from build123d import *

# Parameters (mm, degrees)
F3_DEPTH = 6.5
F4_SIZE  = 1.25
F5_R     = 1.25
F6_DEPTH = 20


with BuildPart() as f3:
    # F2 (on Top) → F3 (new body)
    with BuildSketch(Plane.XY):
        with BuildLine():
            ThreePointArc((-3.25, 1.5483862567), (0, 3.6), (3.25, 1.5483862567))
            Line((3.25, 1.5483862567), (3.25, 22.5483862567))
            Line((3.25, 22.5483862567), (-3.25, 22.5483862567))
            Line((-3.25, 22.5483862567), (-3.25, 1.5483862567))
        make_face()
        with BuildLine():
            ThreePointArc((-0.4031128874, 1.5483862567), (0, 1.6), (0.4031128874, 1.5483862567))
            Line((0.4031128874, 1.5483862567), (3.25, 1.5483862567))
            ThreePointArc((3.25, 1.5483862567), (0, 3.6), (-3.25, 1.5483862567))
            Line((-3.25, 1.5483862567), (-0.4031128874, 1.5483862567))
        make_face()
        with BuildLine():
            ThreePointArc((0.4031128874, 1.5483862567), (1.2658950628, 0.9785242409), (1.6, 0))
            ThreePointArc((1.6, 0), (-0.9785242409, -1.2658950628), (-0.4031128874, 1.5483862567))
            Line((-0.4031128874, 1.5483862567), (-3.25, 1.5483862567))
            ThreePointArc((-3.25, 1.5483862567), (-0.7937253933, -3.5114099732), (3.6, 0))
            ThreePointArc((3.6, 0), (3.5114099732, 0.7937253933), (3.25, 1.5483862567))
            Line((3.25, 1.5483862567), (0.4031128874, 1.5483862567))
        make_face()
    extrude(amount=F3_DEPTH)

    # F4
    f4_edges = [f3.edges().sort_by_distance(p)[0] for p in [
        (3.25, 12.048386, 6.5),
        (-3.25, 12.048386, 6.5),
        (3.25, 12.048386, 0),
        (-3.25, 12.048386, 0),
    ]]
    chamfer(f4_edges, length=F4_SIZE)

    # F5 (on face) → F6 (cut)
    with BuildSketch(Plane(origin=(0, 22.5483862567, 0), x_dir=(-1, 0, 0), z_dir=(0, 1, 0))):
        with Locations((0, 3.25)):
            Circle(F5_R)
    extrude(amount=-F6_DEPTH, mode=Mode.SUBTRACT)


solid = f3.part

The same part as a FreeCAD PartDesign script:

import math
import FreeCAD as App
import Part
import Sketcher
Q = App.Units.Quantity


def edges_at(feature, points):
    """Names of the edges that pass closest to the given points."""
    edges = feature.Shape.Edges
    near = lambda p: min(range(len(edges)), key=lambda i: edges[i].distToShape(Part.Vertex(*p))[0])
    return sorted({f"Edge{near(p) + 1}" for p in points})

doc = App.newDocument("Part")
body = doc.addObject("PartDesign::Body", "Body")

# Sketch on XY plane
sketch1 = body.newObject("Sketcher::SketchObject", "Sketch")
sketch1.AttachmentSupport = (doc.getObject("XY_Plane"), [""])
sketch1.MapMode = "FlatFace"
sketch1.addGeometry(Part.LineSegment(App.Vector(3.25, 1.548386, 0), App.Vector(3.25, 22.548386, 0)), False)
sketch1.addGeometry(Part.LineSegment(App.Vector(3.25, 22.548386, 0), App.Vector(-3.25, 22.548386, 0)), False)
sketch1.addGeometry(Part.LineSegment(App.Vector(-3.25, 22.548386, 0), App.Vector(-3.25, 1.548386, 0)), False)
sketch1.addGeometry(Part.ArcOfCircle(Part.Circle(App.Vector(0, 0, 0), App.Vector(0, 0, 1), 3.6), math.radians(154.525631), math.radians(360)), False)
sketch1.addGeometry(Part.ArcOfCircle(Part.Circle(App.Vector(0, 0, 0), App.Vector(0, 0, 1), 3.6), math.radians(0), math.radians(25.474369)), False)
sketch1.addGeometry(Part.ArcOfCircle(Part.Circle(App.Vector(0, 0, 0), App.Vector(0, 0, 1), 1.6), math.radians(75.40733), math.radians(104.59267)), False)
sketch1.addGeometry(Part.ArcOfCircle(Part.Circle(App.Vector(0, 0, 0), App.Vector(0, 0, 1), 1.6), math.radians(0), math.radians(75.40733)), False)
sketch1.addGeometry(Part.ArcOfCircle(Part.Circle(App.Vector(0, 0, 0), App.Vector(0, 0, 1), 1.6), math.radians(104.59267), math.radians(360)), False)
sketch1.addConstraint(Sketcher.Constraint("Coincident", 0, 2, 1, 1))
sketch1.addConstraint(Sketcher.Constraint("Coincident", 1, 2, 2, 1))
sketch1.addConstraint(Sketcher.Constraint("Coincident", 2, 2, 3, 1))
sketch1.addConstraint(Sketcher.Constraint("Tangent", 3, 2, 4, 1))
sketch1.addConstraint(Sketcher.Constraint("Coincident", 4, 2, 0, 1))
sketch1.addConstraint(Sketcher.Constraint("Tangent", 5, 1, 6, 2))
sketch1.addConstraint(Sketcher.Constraint("Tangent", 6, 1, 7, 2))
sketch1.addConstraint(Sketcher.Constraint("Tangent", 7, 1, 5, 2))
sketch1.addConstraint(Sketcher.Constraint("Vertical", 0))
sketch1.addConstraint(Sketcher.Constraint("Horizontal", 1))
sketch1.addConstraint(Sketcher.Constraint("Vertical", 2))
sketch1.addConstraint(Sketcher.Constraint("Coincident", 3, 3, -1, 1))
sketch1.addConstraint(Sketcher.Constraint("Coincident", 5, 3, -1, 1))
sketch1.addConstraint(Sketcher.Constraint("Equal", 3, 4))
sketch1.addConstraint(Sketcher.Constraint("PointOnObject", 3, 2, -1))
sketch1.addConstraint(Sketcher.Constraint("PointOnObject", 6, 1, -1))
sketch1.addConstraint(Sketcher.Constraint("Horizontal", 2, 2, 4, 2))
sketch1.addConstraint(Sketcher.Constraint("Horizontal", 4, 2, 5, 1))
sketch1.addConstraint(Sketcher.Constraint("Horizontal", 5, 1, 7, 1))
sketch1.addConstraint(Sketcher.Constraint("Radius", 3, Q("3.6 mm")))
sketch1.addConstraint(Sketcher.Constraint("Radius", 5, Q("1.6 mm")))
sketch1.addConstraint(Sketcher.Constraint("DistanceY", 0, 1, 0, 2, Q("21 mm")))
sketch1.addConstraint(Sketcher.Constraint("DistanceX", 1, 2, 1, 1, Q("6.5 mm")))
pad1 = body.newObject("PartDesign::Pad", "Pad")
pad1.Profile = sketch1
pad1.Length = 6.5
doc.recompute()

chamfer = body.newObject("PartDesign::Chamfer", "Chamfer")
chamfer.Base = (pad1, edges_at(pad1, [
    (3.25, 12.048, 6.5),
    (-3.25, 12.048, 6.5),
    (3.25, 12.048, 0),
    (-3.25, 12.048, 0),
]))
chamfer.Size = 1.25

# Sketch on XZ plane
sketch2 = body.newObject("Sketcher::SketchObject", "Sketch001")
sketch2.AttachmentSupport = (doc.getObject("XZ_Plane"), [""])
sketch2.MapMode = "FlatFace"
sketch2.AttachmentOffset = App.Placement(App.Vector(0, 0, -22.548386), App.Rotation())
sketch2.addGeometry(Part.Circle(App.Vector(0, 3.25, 0), App.Vector(0, 0, 1), 1.25), False)
sketch2.addConstraint(Sketcher.Constraint("PointOnObject", 0, 3, -2))
sketch2.addConstraint(Sketcher.Constraint("Diameter", 0, Q("2.5 mm")))
sketch2.addConstraint(Sketcher.Constraint("DistanceY", -1, 1, 0, 3, Q("3.25 mm")))
pocket1 = body.newObject("PartDesign::Pocket", "Pocket")
pocket1.Profile = sketch2
pocket1.Length = 20
pocket1.Reversed = True

doc.recompute()
